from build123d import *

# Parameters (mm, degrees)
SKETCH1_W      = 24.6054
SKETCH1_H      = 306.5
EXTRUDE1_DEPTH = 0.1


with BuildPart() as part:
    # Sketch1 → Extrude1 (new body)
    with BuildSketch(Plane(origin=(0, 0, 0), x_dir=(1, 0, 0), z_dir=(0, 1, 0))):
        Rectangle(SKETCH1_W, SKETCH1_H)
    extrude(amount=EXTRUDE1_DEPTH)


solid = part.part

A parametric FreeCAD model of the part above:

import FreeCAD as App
import Part
import Sketcher

V = App.Vector
Q = App.Units.Quantity

doc = App.newDocument("Part")
body = doc.addObject("PartDesign::Body", "Body")

sketch1 = body.newObject("Sketcher::SketchObject", "Sketch")
sketch1.AttachmentSupport = (doc.getObject("XZ_Plane"), [""])
sketch1.MapMode = "FlatFace"
sketch1.addGeometry([
    Part.LineSegment(V(-12, -153, 0), V(-12, 153, 0)),
    Part.LineSegment(V(-12, 153, 0), V(12, 153, 0)),
    Part.LineSegment(V(12, 153, 0), V(12, -153, 0)),
    Part.LineSegment(V(12, -153, 0), V(-12, -153, 0)),
], False)
sketch1.addConstraint([
    Sketcher.Constraint("Coincident", 0, 2, 1, 1),
    Sketcher.Constraint("Coincident", 1, 2, 2, 1),
    Sketcher.Constraint("Coincident", 2, 2, 3, 1),
    Sketcher.Constraint("Coincident", 3, 2, 0, 1),
    Sketcher.Constraint("Vertical", 0),
    Sketcher.Constraint("Horizontal", 1),
    Sketcher.Constraint("Vertical", 2),
    Sketcher.Constraint("Horizontal", 3),
    Sketcher.Constraint("Symmetric", 0, 2, 2, 2, -1, 1),
    Sketcher.Constraint("DistanceY", 0, 1, 0, 2, Q("306.5 mm")),
    Sketcher.Constraint("DistanceX", 1, 1, 1, 2, Q("24.6054 mm")),
])
pad1 = body.newObject("PartDesign::Pad", "Pad")
pad1.Profile = sketch1
pad1.Length = 0.1
pad1.Reversed = True

doc.recompute()
